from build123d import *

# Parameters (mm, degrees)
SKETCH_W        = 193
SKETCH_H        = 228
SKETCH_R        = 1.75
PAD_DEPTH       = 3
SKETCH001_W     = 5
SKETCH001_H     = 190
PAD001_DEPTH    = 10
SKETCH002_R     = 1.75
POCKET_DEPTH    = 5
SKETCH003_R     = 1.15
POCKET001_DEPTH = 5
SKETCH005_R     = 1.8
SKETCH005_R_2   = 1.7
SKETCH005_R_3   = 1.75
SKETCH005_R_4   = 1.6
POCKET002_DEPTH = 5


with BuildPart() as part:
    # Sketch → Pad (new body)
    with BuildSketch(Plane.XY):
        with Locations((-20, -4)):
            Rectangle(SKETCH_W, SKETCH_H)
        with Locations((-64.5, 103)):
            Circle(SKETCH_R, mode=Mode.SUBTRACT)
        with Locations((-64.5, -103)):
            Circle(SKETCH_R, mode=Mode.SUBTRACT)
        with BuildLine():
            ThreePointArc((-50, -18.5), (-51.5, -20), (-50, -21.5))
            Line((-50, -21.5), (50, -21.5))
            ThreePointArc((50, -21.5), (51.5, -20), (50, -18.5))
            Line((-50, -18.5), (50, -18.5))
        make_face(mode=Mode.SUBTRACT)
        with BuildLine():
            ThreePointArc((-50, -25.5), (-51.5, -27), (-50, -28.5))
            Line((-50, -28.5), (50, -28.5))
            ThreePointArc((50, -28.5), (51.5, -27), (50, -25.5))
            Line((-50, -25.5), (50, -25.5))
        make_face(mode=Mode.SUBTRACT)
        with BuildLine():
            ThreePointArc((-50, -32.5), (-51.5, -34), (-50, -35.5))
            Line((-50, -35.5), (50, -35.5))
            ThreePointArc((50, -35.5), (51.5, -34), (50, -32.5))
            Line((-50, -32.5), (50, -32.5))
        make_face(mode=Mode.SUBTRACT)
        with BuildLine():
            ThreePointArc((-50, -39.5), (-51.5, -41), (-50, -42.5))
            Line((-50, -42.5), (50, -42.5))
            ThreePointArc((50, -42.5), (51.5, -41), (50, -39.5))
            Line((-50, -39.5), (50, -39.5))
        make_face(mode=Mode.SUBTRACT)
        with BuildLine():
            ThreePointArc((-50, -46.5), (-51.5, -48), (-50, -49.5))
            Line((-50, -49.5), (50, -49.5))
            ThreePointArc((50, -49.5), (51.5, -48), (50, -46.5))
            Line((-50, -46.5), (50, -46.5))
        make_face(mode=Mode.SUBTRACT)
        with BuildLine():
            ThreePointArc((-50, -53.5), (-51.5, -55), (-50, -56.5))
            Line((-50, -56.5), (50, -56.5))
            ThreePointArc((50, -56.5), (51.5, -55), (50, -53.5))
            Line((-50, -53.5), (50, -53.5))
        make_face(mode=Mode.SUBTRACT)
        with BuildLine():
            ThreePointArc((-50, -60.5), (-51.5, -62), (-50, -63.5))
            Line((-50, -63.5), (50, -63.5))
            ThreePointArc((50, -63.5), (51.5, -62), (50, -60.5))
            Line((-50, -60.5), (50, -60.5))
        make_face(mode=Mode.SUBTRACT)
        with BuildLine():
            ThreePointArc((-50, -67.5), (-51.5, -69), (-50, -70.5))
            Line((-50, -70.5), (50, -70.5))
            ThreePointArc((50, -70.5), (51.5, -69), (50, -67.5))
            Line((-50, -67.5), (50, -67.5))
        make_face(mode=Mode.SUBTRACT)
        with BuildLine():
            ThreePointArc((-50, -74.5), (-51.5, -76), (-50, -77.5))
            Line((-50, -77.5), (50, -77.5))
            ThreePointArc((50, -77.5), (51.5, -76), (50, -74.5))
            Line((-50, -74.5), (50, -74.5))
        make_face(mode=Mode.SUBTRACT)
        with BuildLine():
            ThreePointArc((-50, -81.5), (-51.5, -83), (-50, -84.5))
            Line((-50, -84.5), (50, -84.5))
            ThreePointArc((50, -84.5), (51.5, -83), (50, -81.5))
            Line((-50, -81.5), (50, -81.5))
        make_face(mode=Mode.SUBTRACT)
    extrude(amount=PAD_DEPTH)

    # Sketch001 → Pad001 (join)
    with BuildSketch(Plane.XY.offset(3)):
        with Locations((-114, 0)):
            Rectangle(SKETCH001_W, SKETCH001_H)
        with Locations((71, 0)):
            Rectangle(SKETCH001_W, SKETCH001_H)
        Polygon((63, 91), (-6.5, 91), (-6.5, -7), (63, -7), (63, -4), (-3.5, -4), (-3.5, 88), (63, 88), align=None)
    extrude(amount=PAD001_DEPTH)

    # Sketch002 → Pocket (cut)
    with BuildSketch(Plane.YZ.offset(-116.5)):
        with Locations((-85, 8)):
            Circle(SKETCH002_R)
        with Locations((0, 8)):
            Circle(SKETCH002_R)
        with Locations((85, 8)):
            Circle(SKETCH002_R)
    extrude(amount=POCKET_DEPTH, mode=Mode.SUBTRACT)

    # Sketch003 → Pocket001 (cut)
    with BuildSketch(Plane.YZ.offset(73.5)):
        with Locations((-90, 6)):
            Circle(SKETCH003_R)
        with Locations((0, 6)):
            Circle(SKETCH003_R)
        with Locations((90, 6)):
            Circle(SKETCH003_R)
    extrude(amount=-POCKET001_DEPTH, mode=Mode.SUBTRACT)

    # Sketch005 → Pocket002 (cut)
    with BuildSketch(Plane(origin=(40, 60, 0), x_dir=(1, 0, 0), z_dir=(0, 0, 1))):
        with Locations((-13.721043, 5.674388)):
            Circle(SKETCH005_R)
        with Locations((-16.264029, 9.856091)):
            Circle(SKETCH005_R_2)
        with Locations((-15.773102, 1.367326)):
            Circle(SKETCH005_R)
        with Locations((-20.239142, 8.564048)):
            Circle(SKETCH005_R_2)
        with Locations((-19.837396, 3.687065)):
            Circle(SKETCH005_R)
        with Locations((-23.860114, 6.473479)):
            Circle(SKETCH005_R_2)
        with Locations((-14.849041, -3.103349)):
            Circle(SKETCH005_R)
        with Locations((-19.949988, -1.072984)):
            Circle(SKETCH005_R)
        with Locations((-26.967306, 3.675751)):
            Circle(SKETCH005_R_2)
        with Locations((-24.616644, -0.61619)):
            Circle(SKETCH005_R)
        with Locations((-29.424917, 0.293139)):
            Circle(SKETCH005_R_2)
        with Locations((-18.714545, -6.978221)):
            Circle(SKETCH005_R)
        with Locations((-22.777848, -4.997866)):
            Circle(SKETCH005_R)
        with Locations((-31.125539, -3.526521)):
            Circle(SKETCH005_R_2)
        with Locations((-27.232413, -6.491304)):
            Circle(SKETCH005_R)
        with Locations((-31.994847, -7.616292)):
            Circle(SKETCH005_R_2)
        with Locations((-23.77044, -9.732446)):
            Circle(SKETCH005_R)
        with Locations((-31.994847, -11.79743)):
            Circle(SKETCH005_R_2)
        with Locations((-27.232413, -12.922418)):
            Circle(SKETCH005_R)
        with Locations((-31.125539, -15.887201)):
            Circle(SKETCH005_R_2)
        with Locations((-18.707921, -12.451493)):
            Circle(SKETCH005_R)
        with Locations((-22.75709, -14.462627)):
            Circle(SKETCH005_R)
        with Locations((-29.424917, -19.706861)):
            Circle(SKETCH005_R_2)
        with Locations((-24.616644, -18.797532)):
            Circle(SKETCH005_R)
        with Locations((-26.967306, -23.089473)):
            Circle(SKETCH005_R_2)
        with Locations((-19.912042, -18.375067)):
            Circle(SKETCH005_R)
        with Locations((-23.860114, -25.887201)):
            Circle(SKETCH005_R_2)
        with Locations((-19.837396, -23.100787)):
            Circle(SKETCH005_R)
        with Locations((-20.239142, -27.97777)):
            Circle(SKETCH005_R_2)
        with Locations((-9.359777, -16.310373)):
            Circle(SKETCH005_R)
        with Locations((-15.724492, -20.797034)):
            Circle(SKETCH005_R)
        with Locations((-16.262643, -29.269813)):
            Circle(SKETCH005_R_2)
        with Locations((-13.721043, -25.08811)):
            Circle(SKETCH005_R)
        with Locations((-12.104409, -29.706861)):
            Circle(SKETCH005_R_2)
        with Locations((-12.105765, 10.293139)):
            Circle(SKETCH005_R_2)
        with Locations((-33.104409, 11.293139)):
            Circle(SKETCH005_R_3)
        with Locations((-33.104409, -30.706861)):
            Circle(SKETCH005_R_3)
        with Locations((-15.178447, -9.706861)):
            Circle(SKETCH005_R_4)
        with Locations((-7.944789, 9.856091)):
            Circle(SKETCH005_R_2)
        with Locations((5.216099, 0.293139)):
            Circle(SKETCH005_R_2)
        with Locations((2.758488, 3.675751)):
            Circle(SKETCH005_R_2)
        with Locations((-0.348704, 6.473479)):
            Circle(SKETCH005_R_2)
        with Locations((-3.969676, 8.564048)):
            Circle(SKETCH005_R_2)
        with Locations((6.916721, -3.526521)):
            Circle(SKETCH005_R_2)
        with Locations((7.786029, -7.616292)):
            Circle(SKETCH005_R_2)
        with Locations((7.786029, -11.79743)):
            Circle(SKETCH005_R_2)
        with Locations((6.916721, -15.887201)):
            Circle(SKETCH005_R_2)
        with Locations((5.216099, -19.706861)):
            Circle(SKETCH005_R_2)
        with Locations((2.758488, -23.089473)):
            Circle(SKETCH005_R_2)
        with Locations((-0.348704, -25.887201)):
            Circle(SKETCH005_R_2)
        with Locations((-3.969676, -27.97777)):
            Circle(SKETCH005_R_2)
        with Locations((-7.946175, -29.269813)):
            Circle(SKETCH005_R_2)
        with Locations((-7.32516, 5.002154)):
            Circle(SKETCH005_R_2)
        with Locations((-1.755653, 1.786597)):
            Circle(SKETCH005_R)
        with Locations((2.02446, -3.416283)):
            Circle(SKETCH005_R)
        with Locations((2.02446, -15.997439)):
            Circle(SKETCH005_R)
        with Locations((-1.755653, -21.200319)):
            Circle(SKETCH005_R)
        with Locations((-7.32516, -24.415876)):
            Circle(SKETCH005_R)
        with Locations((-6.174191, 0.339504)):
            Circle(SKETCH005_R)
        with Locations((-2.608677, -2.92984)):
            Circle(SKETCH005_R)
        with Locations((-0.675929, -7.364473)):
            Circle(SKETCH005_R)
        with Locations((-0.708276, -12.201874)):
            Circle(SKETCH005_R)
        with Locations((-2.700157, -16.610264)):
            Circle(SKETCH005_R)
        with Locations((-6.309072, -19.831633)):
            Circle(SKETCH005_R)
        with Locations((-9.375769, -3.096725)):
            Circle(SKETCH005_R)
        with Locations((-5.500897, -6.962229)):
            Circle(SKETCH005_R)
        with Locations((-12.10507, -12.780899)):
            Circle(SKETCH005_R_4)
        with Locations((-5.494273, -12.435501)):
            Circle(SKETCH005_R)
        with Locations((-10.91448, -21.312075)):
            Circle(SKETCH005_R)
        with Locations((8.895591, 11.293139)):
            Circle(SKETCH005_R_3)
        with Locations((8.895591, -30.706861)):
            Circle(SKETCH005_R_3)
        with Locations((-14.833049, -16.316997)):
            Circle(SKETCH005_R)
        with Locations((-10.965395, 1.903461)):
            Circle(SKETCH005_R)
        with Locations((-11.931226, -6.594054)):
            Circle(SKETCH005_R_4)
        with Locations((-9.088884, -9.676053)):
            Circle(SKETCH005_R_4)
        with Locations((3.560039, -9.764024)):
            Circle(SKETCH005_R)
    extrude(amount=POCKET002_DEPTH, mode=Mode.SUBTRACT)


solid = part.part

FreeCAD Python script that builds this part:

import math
import FreeCAD as App
import Part
import Sketcher

V = App.Vector


def add_polygon(sketch, points):
    """Adds a closed chain of lines whose ends are joined by coincident constraints."""
    first, n = sketch.GeometryCount, len(points)
    for a, b in zip(points, points[1:] + points[:1]):
        sketch.addGeometry(Part.LineSegment(App.Vector(*a, 0), App.Vector(*b, 0)), False)
    for i in range(n):
        sketch.addConstraint(Sketcher.Constraint("Coincident", first + i, 2, first + (i + 1) % n, 1))

doc = App.newDocument("Part")
body = doc.addObject("PartDesign::Body", "Body")

# Sketch on XY plane
sketch1 = doc.addObject("Sketcher::SketchObject", "Sketch")
body.addObject(sketch1)
sketch1.AttachmentSupport = (doc.XY_Plane, [""])
sketch1.MapMode = "FlatFace"
add_polygon(sketch1, [(-116.5, 110), (-116.5, -118), (76.5, -118), (76.5, 110)])  # lines 0-3
sketch1.addGeometry(Part.Circle(V(-64.5, -103, 0), V(0, 0, 1), 1.8), False)  # 4
sketch1.addGeometry(Part.ArcOfCircle(Part.Circle(V(-50, -83, 0), V(0, 0, 1), 1.5), math.radians(90), math.radians(270)), False)  # 5
sketch1.addGeometry(Part.LineSegment(V(-50, -81.5, 0), V(50, -81.5, 0)), False)  # 6
sketch1.addGeometry(Part.ArcOfCircle(Part.Circle(V(50, -83, 0), V(0, 0, 1), 1.5), math.radians(-90), math.radians(90)), False)  # 7
sketch1.addGeometry(Part.LineSegment(V(50, -84.5, 0), V(-50, -84.5, 0)), False)  # 8
sketch1.addGeometry(Part.ArcOfCircle(Part.Circle(V(-50, -76, 0), V(0, 0, 1), 1.5), math.radians(90), math.radians(270)), False)  # 9
sketch1.addGeometry(Part.LineSegment(V(-50, -74.5, 0), V(50, -74.5, 0)), False)  # 10
sketch1.addGeometry(Part.ArcOfCircle(Part.Circle(V(50, -76, 0), V(0, 0, 1), 1.5), math.radians(-90), math.radians(90)), False)  # 11
sketch1.addGeometry(Part.LineSegment(V(50, -77.5, 0), V(-50, -77.5, 0)), False)  # 12
sketch1.addGeometry(Part.ArcOfCircle(Part.Circle(V(-50, -69, 0), V(0, 0, 1), 1.5), math.radians(90), math.radians(270)), False)  # 13
sketch1.addGeometry(Part.LineSegment(V(-50, -67.5, 0), V(50, -67.5, 0)), False)  # 14
sketch1.addGeometry(Part.ArcOfCircle(Part.Circle(V(50, -69, 0), V(0, 0, 1), 1.5), math.radians(-90), math.radians(90)), False)  # 15
sketch1.addGeometry(Part.LineSegment(V(50, -70.5, 0), V(-50, -70.5, 0)), False)  # 16
sketch1.addGeometry(Part.ArcOfCircle(Part.Circle(V(-50, -62, 0), V(0, 0, 1), 1.5), math.radians(90), math.radians(270)), False)  # 17
sketch1.addGeometry(Part.LineSegment(V(-50, -60.5, 0), V(50, -60.5, 0)), False)  # 18
sketch1.addGeometry(Part.ArcOfCircle(Part.Circle(V(50, -62, 0), V(0, 0, 1), 1.5), math.radians(-90), math.radians(90)), False)  # 19
sketch1.addGeometry(Part.LineSegment(V(50, -63.5, 0), V(-50, -63.5, 0)), False)  # 20
sketch1.addGeometry(Part.ArcOfCircle(Part.Circle(V(-50, -55, 0), V(0, 0, 1), 1.5), math.radians(90), math.radians(270)), False)  # 21
sketch1.addGeometry(Part.LineSegment(V(-50, -53.5, 0), V(50, -53.5, 0)), False)  # 22
sketch1.addGeometry(Part.ArcOfCircle(Part.Circle(V(50, -55, 0), V(0, 0, 1), 1.5), math.radians(-90), math.radians(90)), False)  # 23
sketch1.addGeometry(Part.LineSegment(V(50, -56.5, 0), V(-50, -56.5, 0)), False)  # 24
sketch1.addGeometry(Part.ArcOfCircle(Part.Circle(V(-50, -48, 0), V(0, 0, 1), 1.5), math.radians(90), math.radians(270)), False)  # 25
sketch1.addGeometry(Part.LineSegment(V(-50, -46.5, 0), V(50, -46.5, 0)), False)  # 26
sketch1.addGeometry(Part.ArcOfCircle(Part.Circle(V(50, -48, 0), V(0, 0, 1), 1.5), math.radians(-90), math.radians(90)), False)  # 27
sketch1.addGeometry(Part.LineSegment(V(50, -49.5, 0), V(-50, -49.5, 0)), False)  # 28
sketch1.addGeometry(Part.ArcOfCircle(Part.Circle(V(-50, -41, 0), V(0, 0, 1), 1.5), math.radians(90), math.radians(270)), False)  # 29
sketch1.addGeometry(Part.LineSegment(V(-50, -39.5, 0), V(50, -39.5, 0)), False)  # 30
sketch1.addGeometry(Part.ArcOfCircle(Part.Circle(V(50, -41, 0), V(0, 0, 1), 1.5), math.radians(-90), math.radians(90)), False)  # 31
sketch1.addGeometry(Part.LineSegment(V(50, -42.5, 0), V(-50, -42.5, 0)), False)  # 32
sketch1.addGeometry(Part.ArcOfCircle(Part.Circle(V(-50, -34, 0), V(0, 0, 1), 1.5), math.radians(90), math.radians(270)), False)  # 33
sketch1.addGeometry(Part.LineSegment(V(-50, -32.5, 0), V(50, -32.5, 0)), False)  # 34
sketch1.addGeometry(Part.ArcOfCircle(Part.Circle(V(50, -34, 0), V(0, 0, 1), 1.5), math.radians(-90), math.radians(90)), False)  # 35
sketch1.addGeometry(Part.LineSegment(V(50, -35.5, 0), V(-50, -35.5, 0)), False)  # 36
sketch1.addGeometry(Part.ArcOfCircle(Part.Circle(V(-50, -27, 0), V(0, 0, 1), 1.5), math.radians(90), math.radians(270)), False)  # 37
sketch1.addGeometry(Part.LineSegment(V(-50, -25.5, 0), V(50, -25.5, 0)), False)  # 38
sketch1.addGeometry(Part.ArcOfCircle(Part.Circle(V(50, -27, 0), V(0, 0, 1), 1.5), math.radians(-90), math.radians(90)), False)  # 39
sketch1.addGeometry(Part.LineSegment(V(50, -28.5, 0), V(-50, -28.5, 0)), False)  # 40
sketch1.addGeometry(Part.ArcOfCircle(Part.Circle(V(-50, -20, 0), V(0, 0, 1), 1.5), math.radians(90), math.radians(270)), False)  # 41
sketch1.addGeometry(Part.LineSegment(V(-50, -18.5, 0), V(50, -18.5, 0)), False)  # 42
sketch1.addGeometry(Part.ArcOfCircle(Part.Circle(V(50, -20, 0), V(0, 0, 1), 1.5), math.radians(-90), math.radians(90)), False)  # 43
sketch1.addGeometry(Part.LineSegment(V(50, -21.5, 0), V(-50, -21.5, 0)), False)  # 44
sketch1.addGeometry(Part.Circle(V(-64.5, 103, 0), V(0, 0, 1), 1.8), False)  # 45
sketch1.addConstraint(Sketcher.Constraint("Tangent", 5, 1, 6, 1))
sketch1.addConstraint(Sketcher.Constraint("Tangent", 6, 2, 7, 2))
sketch1.addConstraint(Sketcher.Constraint("Tangent", 7, 1, 8, 1))
sketch1.addConstraint(Sketcher.Constraint("Tangent", 8, 2, 5, 2))
sketch1.addConstraint(Sketcher.Constraint("Tangent", 9, 1, 10, 1))
sketch1.addConstraint(Sketcher.Constraint("Tangent", 10, 2, 11, 2))
sketch1.addConstraint(Sketcher.Constraint("Tangent", 11, 1, 12, 1))
sketch1.addConstraint(Sketcher.Constraint("Tangent", 12, 2, 9, 2))
sketch1.addConstraint(Sketcher.Constraint("Tangent", 13, 1, 14, 1))
sketch1.addConstraint(Sketcher.Constraint("Tangent", 14, 2, 15, 2))
sketch1.addConstraint(Sketcher.Constraint("Tangent", 15, 1, 16, 1))
sketch1.addConstraint(Sketcher.Constraint("Tangent", 16, 2, 13, 2))
sketch1.addConstraint(Sketcher.Constraint("Tangent", 17, 1, 18, 1))
sketch1.addConstraint(Sketcher.Constraint("Tangent", 18, 2, 19, 2))
sketch1.addConstraint(Sketcher.Constraint("Tangent", 19, 1, 20, 1))
sketch1.addConstraint(Sketcher.Constraint("Tangent", 20, 2, 17, 2))
sketch1.addConstraint(Sketcher.Constraint("Tangent", 21, 1, 22, 1))
sketch1.addConstraint(Sketcher.Constraint("Tangent", 22, 2, 23, 2))
sketch1.addConstraint(Sketcher.Constraint("Tangent", 23, 1, 24, 1))
sketch1.addConstraint(Sketcher.Constraint("Tangent", 24, 2, 21, 2))
sketch1.addConstraint(Sketcher.Constraint("Tangent", 25, 1, 26, 1))
sketch1.addConstraint(Sketcher.Constraint("Tangent", 26, 2, 27, 2))
sketch1.addConstraint(Sketcher.Constraint("Tangent", 27, 1, 28, 1))
sketch1.addConstraint(Sketcher.Constraint("Tangent", 28, 2, 25, 2))
sketch1.addConstraint(Sketcher.Constraint("Tangent", 29, 1, 30, 1))
sketch1.addConstraint(Sketcher.Constraint("Tangent", 30, 2, 31, 2))
sketch1.addConstraint(Sketcher.Constraint("Tangent", 31, 1, 32, 1))
sketch1.addConstraint(Sketcher.Constraint("Tangent", 32, 2, 29, 2))
sketch1.addConstraint(Sketcher.Constraint("Tangent", 33, 1, 34, 1))
sketch1.addConstraint(Sketcher.Constraint("Tangent", 34, 2, 35, 2))
sketch1.addConstraint(Sketcher.Constraint("Tangent", 35, 1, 36, 1))
sketch1.addConstraint(Sketcher.Constraint("Tangent", 36, 2, 33, 2))
sketch1.addConstraint(Sketcher.Constraint("Tangent", 37, 1, 38, 1))
sketch1.addConstraint(Sketcher.Constraint("Tangent", 38, 2, 39, 2))
sketch1.addConstraint(Sketcher.Constraint("Tangent", 39, 1, 40, 1))
sketch1.addConstraint(Sketcher.Constraint("Tangent", 40, 2, 37, 2))
sketch1.addConstraint(Sketcher.Constraint("Tangent", 41, 1, 42, 1))
sketch1.addConstraint(Sketcher.Constraint("Tangent", 42, 2, 43, 2))
sketch1.addConstraint(Sketcher.Constraint("Tangent", 43, 1, 44, 1))
sketch1.addConstraint(Sketcher.Constraint("Tangent", 44, 2, 41, 2))
sketch1.addConstraint(Sketcher.Constraint("Vertical", 0))
sketch1.addConstraint(Sketcher.Constraint("Horizontal", 1))
sketch1.addConstraint(Sketcher.Constraint("Vertical", 2))
sketch1.addConstraint(Sketcher.Constraint("Horizontal", 3))
sketch1.addConstraint(Sketcher.Constraint("Horizontal", 6))
sketch1.addConstraint(Sketcher.Constraint("Horizontal", 8))
sketch1.addConstraint(Sketcher.Constraint("Horizontal", 10))
sketch1.addConstraint(Sketcher.Constraint("Horizontal", 12))
sketch1.addConstraint(Sketcher.Constraint("Horizontal", 14))
sketch1.addConstraint(Sketcher.Constraint("Horizontal", 16))
sketch1.addConstraint(Sketcher.Constraint("Horizontal", 18))
sketch1.addConstraint(Sketcher.Constraint("Horizontal", 20))
sketch1.addConstraint(Sketcher.Constraint("Horizontal", 22))
sketch1.addConstraint(Sketcher.Constraint("Horizontal", 24))
sketch1.addConstraint(Sketcher.Constraint("Horizontal", 26))
sketch1.addConstraint(Sketcher.Constraint("Horizontal", 28))
sketch1.addConstraint(Sketcher.Constraint("Horizontal", 30))
sketch1.addConstraint(Sketcher.Constraint("Horizontal", 32))
sketch1.addConstraint(Sketcher.Constraint("Horizontal", 34))
sketch1.addConstraint(Sketcher.Constraint("Horizontal", 36))
sketch1.addConstraint(Sketcher.Constraint("Horizontal", 38))
sketch1.addConstraint(Sketcher.Constraint("Horizontal", 40))
sketch1.addConstraint(Sketcher.Constraint("Horizontal", 42))
sketch1.addConstraint(Sketcher.Constraint("Horizontal", 44))
sketch1.addConstraint(Sketcher.Constraint("Equal", 7, 9))
sketch1.addConstraint(Sketcher.Constraint("Equal", 11, 13))
sketch1.addConstraint(Sketcher.Constraint("Equal", 15, 17))
sketch1.addConstraint(Sketcher.Constraint("Equal", 19, 21))
sketch1.addConstraint(Sketcher.Constraint("Equal", 23, 25))
sketch1.addConstraint(Sketcher.Constraint("Equal", 27, 29))
sketch1.addConstraint(Sketcher.Constraint("Equal", 31, 33))
sketch1.addConstraint(Sketcher.Constraint("Equal", 35, 37))
sketch1.addConstraint(Sketcher.Constraint("Equal", 39, 41))
sketch1.addConstraint(Sketcher.Constraint("Equal", 4, 45))
sketch1.addConstraint(Sketcher.Constraint("Symmetric", 4, 3, 45, 3, -1))
sketch1.addConstraint(Sketcher.Constraint("Vertical", 5, 3, 9, 3))
sketch1.addConstraint(Sketcher.Constraint("Vertical", 7, 3, 11, 3))
sketch1.addConstraint(Sketcher.Constraint("Vertical", 9, 3, 13, 3))
sketch1.addConstraint(Sketcher.Constraint("Vertical", 11, 3, 15, 3))
sketch1.addConstraint(Sketcher.Constraint("Vertical", 13, 3, 17, 3))
sketch1.addConstraint(Sketcher.Constraint("Vertical", 15, 3, 19, 3))
sketch1.addConstraint(Sketcher.Constraint("Vertical", 17, 3, 21, 3))
sketch1.addConstraint(Sketcher.Constraint("Vertical", 19, 3, 23, 3))
sketch1.addConstraint(Sketcher.Constraint("Vertical", 21, 3, 25, 3))
sketch1.addConstraint(Sketcher.Constraint("Vertical", 23, 3, 27, 3))
sketch1.addConstraint(Sketcher.Constraint("Vertical", 25, 3, 29, 3))
sketch1.addConstraint(Sketcher.Constraint("Vertical", 27, 3, 31, 3))
sketch1.addConstraint(Sketcher.Constraint("Vertical", 29, 3, 33, 3))
sketch1.addConstraint(Sketcher.Constraint("Vertical", 31, 3, 35, 3))
sketch1.addConstraint(Sketcher.Constraint("Vertical", 33, 3, 37, 3))
sketch1.addConstraint(Sketcher.Constraint("Vertical", 35, 3, 39, 3))
sketch1.addConstraint(Sketcher.Constraint("Vertical", 37, 3, 41, 3))
sketch1.addConstraint(Sketcher.Constraint("Vertical", 39, 3, 43, 3))
sketch1.addConstraint(Sketcher.Constraint("Diameter", 4, 3.5))
sketch1.addConstraint(Sketcher.Constraint("Radius", 5, 1.5))
sketch1.addConstraint(Sketcher.Constraint("DistanceX", 1, 1, 1, 2, 193.0))
sketch1.addConstraint(Sketcher.Constraint("DistanceX", 6, 1, 6, 2, 100.0))
sketch1.addConstraint(Sketcher.Constraint("DistanceY", 0, 2, 0, 1, 228.0))
sketch1.addConstraint(Sketcher.Constraint("DistanceY", 4, 3, -1, 1, 103.0))
sketch1.addConstraint(Sketcher.Constraint("DistanceX", 5, 3, -1, 1, 50.0))
sketch1.addConstraint(Sketcher.Constraint("DistanceY", 5, 3, -1, 1, 83.0))
sketch1.addConstraint(Sketcher.Constraint("DistanceY", 9, 3, -1, 1, 76.0))
sketch1.addConstraint(Sketcher.Constraint("DistanceY", 13, 3, -1, 1, 69.0))
sketch1.addConstraint(Sketcher.Constraint("DistanceY", 17, 3, -1, 1, 62.0))
sketch1.addConstraint(Sketcher.Constraint("DistanceY", 21, 3, -1, 1, 55.0))
sketch1.addConstraint(Sketcher.Constraint("DistanceY", 25, 3, -1, 1, 48.0))
sketch1.addConstraint(Sketcher.Constraint("DistanceY", 29, 3, -1, 1, 41.0))
sketch1.addConstraint(Sketcher.Constraint("DistanceY", 33, 3, -1, 1, 34.0))
sketch1.addConstraint(Sketcher.Constraint("DistanceY", 37, 3, -1, 1, 27.0))
sketch1.addConstraint(Sketcher.Constraint("DistanceY", 41, 3, -1, 1, 20.0))
sketch1.addConstraint(Sketcher.Constraint("DistanceY", 0, 2, -1, 1, 118.0))
sketch1.addConstraint(Sketcher.Constraint("DistanceX", 4, 3, -1, 1, 64.5))
sketch1.addConstraint(Sketcher.Constraint("DistanceX", 0, 2, -1, 1, 116.5))
pad1 = doc.addObject("PartDesign::Pad", "Pad")
body.addObject(pad1)
pad1.Profile = sketch1
pad1.Length = 3

# Sketch on XY plane
sketch2 = doc.addObject("Sketcher::SketchObject", "Sketch001")
body.addObject(sketch2)
sketch2.AttachmentSupport = (doc.XY_Plane, [""])
sketch2.MapMode = "FlatFace"
sketch2.AttachmentOffset = App.Placement(V(0, 0, 3), App.Rotation())
add_polygon(sketch2, [(-116.5, 95), (-116.5, -95), (-111.5, -95), (-111.5, 95)])  # lines 0-3
add_polygon(sketch2, [(68.5, 95), (68.5, -95), (73.5, -95), (73.5, 95)])  # lines 4-7
add_polygon(sketch2, [(63, 91), (-6.5, 91), (-6.5, -7), (63, -7), (63, -4), (-3.5, -4), (-3.5, 88), (63, 88)])  # lines 8-15
sketch2.addConstraint(Sketcher.Constraint("Vertical", 0))
sketch2.addConstraint(Sketcher.Constraint("Horizontal", 1))
sketch2.addConstraint(Sketcher.Constraint("Vertical", 2))
sketch2.addConstraint(Sketcher.Constraint("Horizontal", 3))
sketch2.addConstraint(Sketcher.Constraint("Vertical", 4))
sketch2.addConstraint(Sketcher.Constraint("Horizontal", 5))
sketch2.addConstraint(Sketcher.Constraint("Vertical", 6))
sketch2.addConstraint(Sketcher.Constraint("Horizontal", 7))
sketch2.addConstraint(Sketcher.Constraint("Horizontal", 8))
sketch2.addConstraint(Sketcher.Constraint("Vertical", 9))
sketch2.addConstraint(Sketcher.Constraint("Horizontal", 10))
sketch2.addConstraint(Sketcher.Constraint("Vertical", 11))
sketch2.addConstraint(Sketcher.Constraint("Horizontal", 12))
sketch2.addConstraint(Sketcher.Constraint("Vertical", 13))
sketch2.addConstraint(Sketcher.Constraint("Horizontal", 14))
sketch2.addConstraint(Sketcher.Constraint("Vertical", 15))
sketch2.addConstraint(Sketcher.Constraint("Horizontal", 1, 2, 4, 2))
sketch2.addConstraint(Sketcher.Constraint("Horizontal", 3, 2, 6, 2))
sketch2.addConstraint(Sketcher.Constraint("Vertical", 11, 2, 14, 2))
sketch2.addConstraint(Sketcher.Constraint("Equal", 3, 5))
sketch2.addConstraint(Sketcher.Constraint("Equal", 11, 15))
sketch2.addConstraint(Sketcher.Constraint("DistanceX", 1, 1, 1, 2, 5.0))
sketch2.addConstraint(Sketcher.Constraint("DistanceY", 0, 2, 0, 1, 190.0))
sketch2.addConstraint(Sketcher.Constraint("DistanceY", 9, 2, 9, 1, 98.0))
sketch2.addConstraint(Sketcher.Constraint("DistanceY", 11, 1, 11, 2, 3.0))
sketch2.addConstraint(Sketcher.Constraint("DistanceX", 8, 2, 8, 1, 69.5))
sketch2.addConstraint(Sketcher.Constraint("DistanceX", 12, 2, 12, 1, 66.5))
sketch2.addConstraint(Sketcher.Constraint("DistanceY", 0, 2, -1, 1, 95.0))
sketch2.addConstraint(Sketcher.Constraint("DistanceY", -1, 1, 8, 2, 91.0))
sketch2.addConstraint(Sketcher.Constraint("DistanceX", -1, 1, 10, 2, 63.0))
sketch2.addConstraint(Sketcher.Constraint("DistanceX", 1, 2, 4, 2, 180.0))
sketch2.addConstraint(Sketcher.Constraint("DistanceX", 8, 2, 7, 2, 75.0))
pad2 = doc.addObject("PartDesign::Pad", "Pad001")
body.addObject(pad2)
pad2.Profile = sketch2
pad2.Length = 10

# Sketch on YZ plane
sketch3 = doc.addObject("Sketcher::SketchObject", "Sketch002")
body.addObject(sketch3)
sketch3.AttachmentSupport = (doc.YZ_Plane, [""])
sketch3.MapMode = "FlatFace"
sketch3.AttachmentOffset = App.Placement(V(0, 0, -116.5), App.Rotation())
sketch3.addGeometry(Part.Circle(V(-85, 8, 0), V(0, 0, 1), 1.8), False)
sketch3.addGeometry(Part.Circle(V(0, 8, 0), V(0, 0, 1), 1.8), False)
sketch3.addGeometry(Part.Circle(V(85, 8, 0), V(0, 0, 1), 1.8), False)
sketch3.addConstraint(Sketcher.Constraint("Equal", 0, 1))
sketch3.addConstraint(Sketcher.Constraint("Equal", 1, 2))
sketch3.addConstraint(Sketcher.Constraint("Symmetric", 0, 3, 2, 3, -2))
sketch3.addConstraint(Sketcher.Constraint("PointOnObject", 1, 3, -2))
sketch3.addConstraint(Sketcher.Constraint("Horizontal", 0, 3, 1, 3))
sketch3.addConstraint(Sketcher.Constraint("Diameter", 0, 3.5))
sketch3.addConstraint(Sketcher.Constraint("DistanceX", 0, 3, -1, 1, 85.0))
sketch3.addConstraint(Sketcher.Constraint("DistanceY", -1, 1, 0, 3, 8.0))
pocket1 = doc.addObject("PartDesign::Pocket", "Pocket")
body.addObject(pocket1)
pocket1.Profile = sketch3
pocket1.Length = 5
pocket1.Reversed = True

# Sketch on YZ plane
sketch4 = doc.addObject("Sketcher::SketchObject", "Sketch003")
body.addObject(sketch4)
sketch4.AttachmentSupport = (doc.YZ_Plane, [""])
sketch4.MapMode = "FlatFace"
sketch4.AttachmentOffset = App.Placement(V(0, 0, 73.5), App.Rotation())
sketch4.addGeometry(Part.Circle(V(-90, 6, 0), V(0, 0, 1), 1.1), False)
sketch4.addGeometry(Part.Circle(V(0, 6, 0), V(0, 0, 1), 1.1), False)
sketch4.addGeometry(Part.Circle(V(90, 6, 0), V(0, 0, 1), 1.1), False)
sketch4.addConstraint(Sketcher.Constraint("Equal", 0, 1))
sketch4.addConstraint(Sketcher.Constraint("Equal", 1, 2))
sketch4.addConstraint(Sketcher.Constraint("Symmetric", 0, 3, 2, 3, -2))
sketch4.addConstraint(Sketcher.Constraint("PointOnObject", 1, 3, -2))
sketch4.addConstraint(Sketcher.Constraint("Horizontal", 0, 3, 1, 3))
sketch4.addConstraint(Sketcher.Constraint("Diameter", 0, 2.3))
sketch4.addConstraint(Sketcher.Constraint("DistanceX", 0, 3, -1, 1, 90.0))
sketch4.addConstraint(Sketcher.Constraint("DistanceY", -1, 1, 0, 3, 6.0))
pocket2 = doc.addObject("PartDesign::Pocket", "Pocket001")
body.addObject(pocket2)
pocket2.Profile = sketch4
pocket2.Length = 5

# Sketch on XY plane
sketch5 = doc.addObject("Sketcher::SketchObject", "Sketch004")
body.addObject(sketch5)
sketch5.AttachmentSupport = (doc.XY_Plane, [""])
sketch5.MapMode = "FlatFace"
sketch5.addGeometry(Part.Circle(V(26.3, 65.7, 0), V(0, 0, 1), 1.8), False)
sketch5.addGeometry(Part.Circle(V(23.7, 69.9, 0), V(0, 0, 1), 1.7), False)
sketch5.addGeometry(Part.Circle(V(24.2, 61.4, 0), V(0, 0, 1), 1.8), False)
sketch5.addGeometry(Part.Circle(V(19.8, 68.6, 0), V(0, 0, 1), 1.7), False)
sketch5.addGeometry(Part.Circle(V(20.2, 63.7, 0), V(0, 0, 1), 1.8), False)
sketch5.addGeometry(Part.Circle(V(16.1, 66.5, 0), V(0, 0, 1), 1.7), False)
sketch5.addGeometry(Part.Circle(V(25.2, 56.9, 0), V(0, 0, 1), 1.8), False)
sketch5.addGeometry(Part.Circle(V(20.1, 58.9, 0), V(0, 0, 1), 1.8), False)
sketch5.addGeometry(Part.Circle(V(13, 63.7, 0), V(0, 0, 1), 1.7), False)
sketch5.addGeometry(Part.Circle(V(15.4, 59.4, 0), V(0, 0, 1), 1.8), False)
sketch5.addGeometry(Part.Circle(V(10.6, 60.3, 0), V(0, 0, 1), 1.7), False)
sketch5.addGeometry(Part.Circle(V(21.3, 53, 0), V(0, 0, 1), 1.8), False)
sketch5.addGeometry(Part.Circle(V(17.2, 55, 0), V(0, 0, 1), 1.8), False)
sketch5.addGeometry(Part.Circle(V(8.9, 56.5, 0), V(0, 0, 1), 1.7), False)
sketch5.addGeometry(Part.Circle(V(12.8, 53.5, 0), V(0, 0, 1), 1.8), False)
sketch5.addGeometry(Part.Circle(V(8, 52.4, 0), V(0, 0, 1), 1.7), False)
sketch5.addGeometry(Part.Circle(V(16.2, 50.3, 0), V(0, 0, 1), 1.8), False)
sketch5.addGeometry(Part.Circle(V(8, 48.2, 0), V(0, 0, 1), 1.7), False)
sketch5.addGeometry(Part.Circle(V(12.8, 47.1, 0), V(0, 0, 1), 1.8), False)
sketch5.addGeometry(Part.Circle(V(8.9, 44.1, 0), V(0, 0, 1), 1.7), False)
sketch5.addGeometry(Part.Circle(V(21.3, 47.5, 0), V(0, 0, 1), 1.8), False)
sketch5.addGeometry(Part.Circle(V(17.2, 45.5, 0), V(0, 0, 1), 1.8), False)
sketch5.addGeometry(Part.Circle(V(10.6, 40.3, 0), V(0, 0, 1), 1.7), False)
sketch5.addGeometry(Part.Circle(V(15.4, 41.2, 0), V(0, 0, 1), 1.8), False)
sketch5.addGeometry(Part.Circle(V(13, 36.9, 0), V(0, 0, 1), 1.7), False)
sketch5.addGeometry(Part.Circle(V(20.1, 41.6, 0), V(0, 0, 1), 1.8), False)
sketch5.addGeometry(Part.Circle(V(16.1, 34.1, 0), V(0, 0, 1), 1.7), False)
sketch5.addGeometry(Part.Circle(V(20.2, 36.9, 0), V(0, 0, 1), 1.8), False)
sketch5.addGeometry(Part.Circle(V(19.8, 32, 0), V(0, 0, 1), 1.7), False)
sketch5.addGeometry(Part.Circle(V(30.6, 43.7, 0), V(0, 0, 1), 1.8), False)
sketch5.addGeometry(Part.Circle(V(24.3, 39.2, 0), V(0, 0, 1), 1.8), False)
sketch5.addGeometry(Part.Circle(V(23.7, 30.7, 0), V(0, 0, 1), 1.7), False)
sketch5.addGeometry(Part.Circle(V(26.3, 34.9, 0), V(0, 0, 1), 1.8), False)
sketch5.addGeometry(Part.Circle(V(27.9, 30.3, 0), V(0, 0, 1), 1.7), False)
sketch5.addGeometry(Part.Circle(V(27.9, 70.3, 0), V(0, 0, 1), 1.7), False)
sketch5.addGeometry(Part.Circle(V(6.9, 71.3, 0), V(0, 0, 1), 1.8), False)
sketch5.addGeometry(Part.Circle(V(6.9, 29.3, 0), V(0, 0, 1), 1.8), False)
sketch5.addGeometry(Part.Circle(V(24.8, 50.3, 0), V(0, 0, 1), 1.6), False)
sketch5.addGeometry(Part.Circle(V(32.1, 69.9, 0), V(0, 0, 1), 1.7), False)
sketch5.addGeometry(Part.Circle(V(45.2, 60.3, 0), V(0, 0, 1), 1.7), False)
sketch5.addGeometry(Part.Circle(V(42.8, 63.7, 0), V(0, 0, 1), 1.7), False)
sketch5.addGeometry(Part.Circle(V(39.7, 66.5, 0), V(0, 0, 1), 1.7), False)
sketch5.addGeometry(Part.Circle(V(36, 68.6, 0), V(0, 0, 1), 1.7), False)
sketch5.addGeometry(Part.Circle(V(46.9, 56.5, 0), V(0, 0, 1), 1.7), False)
sketch5.addGeometry(Part.Circle(V(47.8, 52.4, 0), V(0, 0, 1), 1.7), False)
sketch5.addGeometry(Part.Circle(V(47.8, 48.2, 0), V(0, 0, 1), 1.7), False)
sketch5.addGeometry(Part.Circle(V(46.9, 44.1, 0), V(0, 0, 1), 1.7), False)
sketch5.addGeometry(Part.Circle(V(45.2, 40.3, 0), V(0, 0, 1), 1.7), False)
sketch5.addGeometry(Part.Circle(V(42.8, 36.9, 0), V(0, 0, 1), 1.7), False)
sketch5.addGeometry(Part.Circle(V(39.7, 34.1, 0), V(0, 0, 1), 1.7), False)
sketch5.addGeometry(Part.Circle(V(36, 32, 0), V(0, 0, 1), 1.7), False)
sketch5.addGeometry(Part.Circle(V(32.1, 30.7, 0), V(0, 0, 1), 1.7), False)
sketch5.addGeometry(Part.Circle(V(32.7, 65, 0), V(0, 0, 1), 1.7), False)
sketch5.addGeometry(Part.Circle(V(38.2, 61.8, 0), V(0, 0, 1), 1.8), False)
sketch5.addGeometry(Part.Circle(V(42, 56.6, 0), V(0, 0, 1), 1.8), False)
sketch5.addGeometry(Part.Circle(V(42, 44, 0), V(0, 0, 1), 1.8), False)
sketch5.addGeometry(Part.Circle(V(38.2, 38.8, 0), V(0, 0, 1), 1.8), False)
sketch5.addGeometry(Part.Circle(V(32.7, 35.6, 0), V(0, 0, 1), 1.8), False)
sketch5.addGeometry(Part.Circle(V(33.8, 60.3, 0), V(0, 0, 1), 1.8), False)
sketch5.addGeometry(Part.Circle(V(37.4, 57.1, 0), V(0, 0, 1), 1.8), False)
sketch5.addGeometry(Part.Circle(V(39.3, 52.6, 0), V(0, 0, 1), 1.8), False)
sketch5.addGeometry(Part.Circle(V(39.3, 47.8, 0), V(0, 0, 1), 1.8), False)
sketch5.addGeometry(Part.Circle(V(37.3, 43.4, 0), V(0, 0, 1), 1.8), False)
sketch5.addGeometry(Part.Circle(V(33.7, 40.2, 0), V(0, 0, 1), 1.8), False)
sketch5.addGeometry(Part.Circle(V(30.6, 56.9, 0), V(0, 0, 1), 1.8), False)
sketch5.addGeometry(Part.Circle(V(34.5, 53, 0), V(0, 0, 1), 1.8), False)
sketch5.addGeometry(Part.Circle(V(27.9, 47.2, 0), V(0, 0, 1), 1.6), False)
sketch5.addGeometry(Part.Circle(V(34.5, 47.6, 0), V(0, 0, 1), 1.8), False)
sketch5.addGeometry(Part.Circle(V(29.1, 38.7, 0), V(0, 0, 1), 1.8), False)
sketch5.addGeometry(Part.Circle(V(48.9, 71.3, 0), V(0, 0, 1), 1.8), False)
sketch5.addGeometry(Part.Circle(V(48.9, 29.3, 0), V(0, 0, 1), 1.8), False)
sketch5.addGeometry(Part.Circle(V(25.2, 43.7, 0), V(0, 0, 1), 1.8), False)
sketch5.addGeometry(Part.Circle(V(29, 61.9, 0), V(0, 0, 1), 1.8), False)
sketch5.addGeometry(Part.Circle(V(28.1, 53.4, 0), V(0, 0, 1), 1.6), False)
sketch5.addGeometry(Part.Circle(V(30.9, 50.3, 0), V(0, 0, 1), 1.6), False)
sketch5.addGeometry(Part.Circle(V(43.6, 50.2, 0), V(0, 0, 1), 1.8), False)
sketch5.addConstraint(Sketcher.Constraint("Equal", 0, 2))
sketch5.addConstraint(Sketcher.Constraint("Equal", 1, 3))
sketch5.addConstraint(Sketcher.Constraint("Equal", 2, 4))
sketch5.addConstraint(Sketcher.Constraint("Equal", 3, 5))
sketch5.addConstraint(Sketcher.Constraint("Equal", 4, 6))
sketch5.addConstraint(Sketcher.Constraint("Equal", 6, 7))
sketch5.addConstraint(Sketcher.Constraint("Equal", 5, 8))
sketch5.addConstraint(Sketcher.Constraint("Equal", 7, 9))
sketch5.addConstraint(Sketcher.Constraint("Equal", 8, 10))
sketch5.addConstraint(Sketcher.Constraint("Equal", 9, 11))
sketch5.addConstraint(Sketcher.Constraint("Equal", 11, 12))
sketch5.addConstraint(Sketcher.Constraint("Equal", 10, 13))
sketch5.addConstraint(Sketcher.Constraint("Equal", 12, 14))
sketch5.addConstraint(Sketcher.Constraint("Equal", 13, 15))
sketch5.addConstraint(Sketcher.Constraint("Equal", 14, 16))
sketch5.addConstraint(Sketcher.Constraint("Equal", 15, 17))
sketch5.addConstraint(Sketcher.Constraint("Equal", 16, 18))
sketch5.addConstraint(Sketcher.Constraint("Equal", 17, 19))
sketch5.addConstraint(Sketcher.Constraint("Equal", 18, 20))
sketch5.addConstraint(Sketcher.Constraint("Equal", 20, 21))
sketch5.addConstraint(Sketcher.Constraint("Equal", 19, 22))
sketch5.addConstraint(Sketcher.Constraint("Equal", 21, 23))
sketch5.addConstraint(Sketcher.Constraint("Equal", 22, 24))
sketch5.addConstraint(Sketcher.Constraint("Equal", 23, 25))
sketch5.addConstraint(Sketcher.Constraint("Equal", 24, 26))
sketch5.addConstraint(Sketcher.Constraint("Equal", 25, 27))
sketch5.addConstraint(Sketcher.Constraint("Equal", 26, 28))
sketch5.addConstraint(Sketcher.Constraint("Equal", 27, 29))
sketch5.addConstraint(Sketcher.Constraint("Equal", 29, 30))
sketch5.addConstraint(Sketcher.Constraint("Equal", 28, 31))
sketch5.addConstraint(Sketcher.Constraint("Equal", 30, 32))
sketch5.addConstraint(Sketcher.Constraint("Equal", 31, 33))
sketch5.addConstraint(Sketcher.Constraint("Equal", 33, 34))
sketch5.addConstraint(Sketcher.Constraint("Equal", 35, 36))
sketch5.addConstraint(Sketcher.Constraint("Equal", 34, 38))
sketch5.addConstraint(Sketcher.Constraint("Equal", 38, 39))
sketch5.addConstraint(Sketcher.Constraint("Equal", 39, 40))
sketch5.addConstraint(Sketcher.Constraint("Equal", 40, 41))
sketch5.addConstraint(Sketcher.Constraint("Equal", 41, 42))
sketch5.addConstraint(Sketcher.Constraint("Equal", 42, 43))
sketch5.addConstraint(Sketcher.Constraint("Equal", 43, 44))
sketch5.addConstraint(Sketcher.Constraint("Equal", 44, 45))
sketch5.addConstraint(Sketcher.Constraint("Equal", 45, 46))
sketch5.addConstraint(Sketcher.Constraint("Equal", 46, 47))
sketch5.addConstraint(Sketcher.Constraint("Equal", 47, 48))
sketch5.addConstraint(Sketcher.Constraint("Equal", 48, 49))
sketch5.addConstraint(Sketcher.Constraint("Equal", 49, 50))
sketch5.addConstraint(Sketcher.Constraint("Equal", 50, 51))
sketch5.addConstraint(Sketcher.Constraint("Equal", 51, 52))
sketch5.addConstraint(Sketcher.Constraint("Equal", 32, 53))
sketch5.addConstraint(Sketcher.Constraint("Equal", 53, 54))
sketch5.addConstraint(Sketcher.Constraint("Equal", 54, 55))
sketch5.addConstraint(Sketcher.Constraint("Equal", 55, 56))
sketch5.addConstraint(Sketcher.Constraint("Equal", 56, 57))
sketch5.addConstraint(Sketcher.Constraint("Equal", 57, 58))
sketch5.addConstraint(Sketcher.Constraint("Equal", 58, 59))
sketch5.addConstraint(Sketcher.Constraint("Equal", 59, 60))
sketch5.addConstraint(Sketcher.Constraint("Equal", 60, 61))
sketch5.addConstraint(Sketcher.Constraint("Equal", 61, 62))
sketch5.addConstraint(Sketcher.Constraint("Equal", 62, 63))
sketch5.addConstraint(Sketcher.Constraint("Equal", 63, 64))
sketch5.addConstraint(Sketcher.Constraint("Equal", 64, 65))
sketch5.addConstraint(Sketcher.Constraint("Equal", 37, 66))
sketch5.addConstraint(Sketcher.Constraint("Equal", 65, 67))
sketch5.addConstraint(Sketcher.Constraint("Equal", 67, 68))
sketch5.addConstraint(Sketcher.Constraint("Equal", 36, 69))
sketch5.addConstraint(Sketcher.Constraint("Equal", 69, 70))
sketch5.addConstraint(Sketcher.Constraint("Equal", 68, 71))
sketch5.addConstraint(Sketcher.Constraint("Equal", 71, 72))
sketch5.addConstraint(Sketcher.Constraint("Equal", 66, 73))
sketch5.addConstraint(Sketcher.Constraint("Equal", 73, 74))
sketch5.addConstraint(Sketcher.Constraint("Equal", 72, 75))
sketch5.addConstraint(Sketcher.Constraint("Horizontal", 1, 3, 38, 3))
sketch5.addConstraint(Sketcher.Constraint("Horizontal", 10, 3, 39, 3))
sketch5.addConstraint(Sketcher.Constraint("Horizontal", 8, 3, 40, 3))
sketch5.addConstraint(Sketcher.Constraint("Horizontal", 5, 3, 41, 3))
sketch5.addConstraint(Sketcher.Constraint("Horizontal", 3, 3, 42, 3))
sketch5.addConstraint(Sketcher.Constraint("Horizontal", 13, 3, 43, 3))
sketch5.addConstraint(Sketcher.Constraint("Horizontal", 15, 3, 44, 3))
sketch5.addConstraint(Sketcher.Constraint("Horizontal", 17, 3, 45, 3))
sketch5.addConstraint(Sketcher.Constraint("Horizontal", 19, 3, 46, 3))
sketch5.addConstraint(Sketcher.Constraint("Horizontal", 22, 3, 47, 3))
sketch5.addConstraint(Sketcher.Constraint("Horizontal", 24, 3, 48, 3))
sketch5.addConstraint(Sketcher.Constraint("Horizontal", 26, 3, 49, 3))
sketch5.addConstraint(Sketcher.Constraint("Horizontal", 28, 3, 50, 3))
sketch5.addConstraint(Sketcher.Constraint("Horizontal", 31, 3, 51, 3))
sketch5.addConstraint(Sketcher.Constraint("Horizontal", 35, 3, 69, 3))
sketch5.addConstraint(Sketcher.Constraint("Horizontal", 36, 3, 70, 3))
sketch5.addConstraint(Sketcher.Constraint("Vertical", 15, 3, 17, 3))
sketch5.addConstraint(Sketcher.Constraint("Vertical", 14, 3, 18, 3))
sketch5.addConstraint(Sketcher.Constraint("Vertical", 13, 3, 19, 3))
sketch5.addConstraint(Sketcher.Constraint("Vertical", 10, 3, 22, 3))
sketch5.addConstraint(Sketcher.Constraint("Vertical", 9, 3, 23, 3))
sketch5.addConstraint(Sketcher.Constraint("Vertical", 8, 3, 24, 3))
sketch5.addConstraint(Sketcher.Constraint("Vertical", 5, 3, 26, 3))
sketch5.addConstraint(Sketcher.Constraint("Vertical", 4, 3, 27, 3))
sketch5.addConstraint(Sketcher.Constraint("Vertical", 3, 3, 28, 3))
sketch5.addConstraint(Sketcher.Constraint("Vertical", 0, 3, 32, 3))
sketch5.addConstraint(Sketcher.Constraint("Vertical", 35, 3, 36, 3))
sketch5.addConstraint(Sketcher.Constraint("Vertical", 44, 3, 45, 3))
sketch5.addConstraint(Sketcher.Constraint("Vertical", 43, 3, 46, 3))
sketch5.addConstraint(Sketcher.Constraint("Vertical", 39, 3, 47, 3))
sketch5.addConstraint(Sketcher.Constraint("Vertical", 40, 3, 48, 3))
sketch5.addConstraint(Sketcher.Constraint("Vertical", 41, 3, 49, 3))
sketch5.addConstraint(Sketcher.Constraint("Vertical", 42, 3, 50, 3))
sketch5.addConstraint(Sketcher.Constraint("Vertical", 54, 3, 55, 3))
sketch5.addConstraint(Sketcher.Constraint("Vertical", 53, 3, 56, 3))
sketch5.addConstraint(Sketcher.Constraint("Vertical", 52, 3, 57, 3))
sketch5.addConstraint(Sketcher.Constraint("Vertical", 69, 3, 70, 3))
sketch5.addConstraint(Sketcher.Constraint("Diameter", 0, 3.6))
sketch5.addConstraint(Sketcher.Constraint("Diameter", 1, 3.4))
sketch5.addConstraint(Sketcher.Constraint("Diameter", 35, 3.5))
sketch5.addConstraint(Sketcher.Constraint("Diameter", 37, 3.2))
sketch5.addConstraint(Sketcher.Constraint("DistanceY", -1, 1, 19, 3, 44.112799))
sketch5.addConstraint(Sketcher.Constraint("DistanceY", -1, 1, 26, 3, 34.112799))
sketch5.addConstraint(Sketcher.Constraint("DistanceX", -1, 1, 39, 3, 45.216099))
sketch5.addConstraint(Sketcher.Constraint("DistanceY", -1, 1, 66, 3, 47.219101))
sketch5.addConstraint(Sketcher.Constraint("DistanceY", -1, 1, 67, 3, 47.564499))
sketch5.addConstraint(Sketcher.Constraint("DistanceX", -1, 1, 1, 3, 23.735971))
sketch5.addConstraint(Sketcher.Constraint("DistanceY", -1, 1, 1, 3, 69.856091))
sketch5.addConstraint(Sketcher.Constraint("DistanceY", -1, 1, 3, 3, 68.564048))
sketch5.addConstraint(Sketcher.Constraint("DistanceY", -1, 1, 5, 3, 66.473479))
sketch5.addConstraint(Sketcher.Constraint("DistanceX", -1, 1, 6, 3, 25.150959))
sketch5.addConstraint(Sketcher.Constraint("DistanceY", -1, 1, 6, 3, 56.896651))
sketch5.addConstraint(Sketcher.Constraint("DistanceX", -1, 1, 7, 3, 20.050012))
sketch5.addConstraint(Sketcher.Constraint("DistanceY", -1, 1, 8, 3, 63.675751))
sketch5.addConstraint(Sketcher.Constraint("DistanceY", -1, 1, 9, 3, 59.38381))
sketch5.addConstraint(Sketcher.Constraint("DistanceY", -1, 1, 10, 3, 60.293139))
sketch5.addConstraint(Sketcher.Constraint("DistanceY", -1, 1, 11, 3, 53.021779))
sketch5.addConstraint(Sketcher.Constraint("DistanceX", -1, 1, 13, 3, 8.874461))
sketch5.addConstraint(Sketcher.Constraint("DistanceY", -1, 1, 13, 3, 56.473479))
sketch5.addConstraint(Sketcher.Constraint("DistanceX", -1, 1, 16, 3, 16.22956))
sketch5.addConstraint(Sketcher.Constraint("DistanceY", -1, 1, 17, 3, 48.20257))
sketch5.addConstraint(Sketcher.Constraint("DistanceX", -1, 1, 20, 3, 21.292079))
sketch5.addConstraint(Sketcher.Constraint("DistanceX", -1, 1, 21, 3, 17.24291))
sketch5.addConstraint(Sketcher.Constraint("DistanceY", -1, 1, 22, 3, 40.293139))
sketch5.addConstraint(Sketcher.Constraint("DistanceY", -1, 1, 23, 3, 41.202468))
sketch5.addConstraint(Sketcher.Constraint("DistanceX", -1, 1, 25, 3, 20.087958))
sketch5.addConstraint(Sketcher.Constraint("DistanceY", -1, 1, 28, 3, 32.02223))
sketch5.addConstraint(Sketcher.Constraint("DistanceY", -1, 1, 32, 3, 34.91189))
sketch5.addConstraint(Sketcher.Constraint("DistanceX", -1, 1, 33, 3, 27.895591))
sketch5.addConstraint(Sketcher.Constraint("DistanceY", -1, 1, 33, 3, 30.293139))
sketch5.addConstraint(Sketcher.Constraint("DistanceY", -1, 1, 34, 3, 70.293139))
sketch5.addConstraint(Sketcher.Constraint("DistanceX", -1, 1, 35, 3, 6.895591))
sketch5.addConstraint(Sketcher.Constraint("DistanceY", -1, 1, 35, 3, 71.293139))
sketch5.addConstraint(Sketcher.Constraint("DistanceY", -1, 1, 36, 3, 29.293139))
sketch5.addConstraint(Sketcher.Constraint("DistanceY", -1, 1, 37, 3, 50.293139))
sketch5.addConstraint(Sketcher.Constraint("DistanceX", -1, 1, 38, 3, 32.055211))
sketch5.addConstraint(Sketcher.Constraint("DistanceX", -1, 1, 43, 3, 46.916721))
sketch5.addConstraint(Sketcher.Constraint("DistanceX", -1, 1, 44, 3, 47.786029))
sketch5.addConstraint(Sketcher.Constraint("DistanceX", -1, 1, 52, 3, 32.67484))
sketch5.addConstraint(Sketcher.Constraint("DistanceX", -1, 1, 54, 3, 42.02446))
sketch5.addConstraint(Sketcher.Constraint("DistanceY", -1, 1, 55, 3, 44.002561))
sketch5.addConstraint(Sketcher.Constraint("DistanceY", -1, 1, 56, 3, 38.799681))
sketch5.addConstraint(Sketcher.Constraint("DistanceX", -1, 1, 58, 3, 33.825809))
sketch5.addConstraint(Sketcher.Constraint("DistanceY", -1, 1, 59, 3, 57.07016))
sketch5.addConstraint(Sketcher.Constraint("DistanceX", -1, 1, 60, 3, 39.324071))
sketch5.addConstraint(Sketcher.Constraint("DistanceX", -1, 1, 64, 3, 30.624231))
sketch5.addConstraint(Sketcher.Constraint("DistanceY", -1, 1, 65, 3, 53.037771))
sketch5.addConstraint(Sketcher.Constraint("DistanceX", -1, 1, 66, 3, 27.89493))
sketch5.addConstraint(Sketcher.Constraint("DistanceX", -1, 1, 68, 3, 29.08552))
sketch5.addConstraint(Sketcher.Constraint("DistanceX", -1, 1, 69, 3, 48.895591))
sketch5.addConstraint(Sketcher.Constraint("DistanceX", -1, 1, 71, 3, 25.166951))
sketch5.addConstraint(Sketcher.Constraint("DistanceY", -1, 1, 72, 3, 61.903461))
sketch5.addConstraint(Sketcher.Constraint("DistanceX", -1, 1, 75, 3, 43.560039))
sketch5.addConstraint(Sketcher.Constraint("DistanceX", -1, 1, 0, 3, 26.278957))
sketch5.addConstraint(Sketcher.Constraint("DistanceY", -1, 1, 0, 3, 65.674388))
sketch5.addConstraint(Sketcher.Constraint("DistanceX", -1, 1, 2, 3, 24.226898))
sketch5.addConstraint(Sketcher.Constraint("DistanceY", -1, 1, 2, 3, 61.367326))
sketch5.addConstraint(Sketcher.Constraint("DistanceX", -1, 1, 3, 3, 19.760858))
sketch5.addConstraint(Sketcher.Constraint("DistanceX", -1, 1, 4, 3, 20.162604))
sketch5.addConstraint(Sketcher.Constraint("DistanceY", -1, 1, 4, 3, 63.687065))
sketch5.addConstraint(Sketcher.Constraint("DistanceX", -1, 1, 5, 3, 16.139886))
sketch5.addConstraint(Sketcher.Constraint("DistanceY", -1, 1, 7, 3, 58.927016))
sketch5.addConstraint(Sketcher.Constraint("DistanceX", -1, 1, 8, 3, 13.032694))
sketch5.addConstraint(Sketcher.Constraint("DistanceX", -1, 1, 9, 3, 15.383356))
sketch5.addConstraint(Sketcher.Constraint("DistanceX", -1, 1, 10, 3, 10.575083))
sketch5.addConstraint(Sketcher.Constraint("DistanceX", -1, 1, 11, 3, 21.285455))
sketch5.addConstraint(Sketcher.Constraint("DistanceX", -1, 1, 12, 3, 17.222152))
sketch5.addConstraint(Sketcher.Constraint("DistanceY", -1, 1, 12, 3, 55.002134))
sketch5.addConstraint(Sketcher.Constraint("DistanceX", -1, 1, 14, 3, 12.767587))
sketch5.addConstraint(Sketcher.Constraint("DistanceY", -1, 1, 14, 3, 53.508696))
sketch5.addConstraint(Sketcher.Constraint("DistanceX", -1, 1, 15, 3, 8.005153))
sketch5.addConstraint(Sketcher.Constraint("DistanceY", -1, 1, 15, 3, 52.383708))
sketch5.addConstraint(Sketcher.Constraint("DistanceY", -1, 1, 16, 3, 50.267554))
sketch5.addConstraint(Sketcher.Constraint("DistanceY", -1, 1, 18, 3, 47.077582))
sketch5.addConstraint(Sketcher.Constraint("DistanceY", -1, 1, 20, 3, 47.548507))
sketch5.addConstraint(Sketcher.Constraint("DistanceY", -1, 1, 21, 3, 45.537373))
sketch5.addConstraint(Sketcher.Constraint("DistanceY", -1, 1, 24, 3, 36.910527))
sketch5.addConstraint(Sketcher.Constraint("DistanceY", -1, 1, 25, 3, 41.624933))
sketch5.addConstraint(Sketcher.Constraint("DistanceY", -1, 1, 27, 3, 36.899213))
sketch5.addConstraint(Sketcher.Constraint("DistanceX", -1, 1, 29, 3, 30.640223))
sketch5.addConstraint(Sketcher.Constraint("DistanceY", -1, 1, 29, 3, 43.689627))
sketch5.addConstraint(Sketcher.Constraint("DistanceX", -1, 1, 30, 3, 24.275508))
sketch5.addConstraint(Sketcher.Constraint("DistanceY", -1, 1, 30, 3, 39.202966))
sketch5.addConstraint(Sketcher.Constraint("DistanceX", -1, 1, 31, 3, 23.737357))
sketch5.addConstraint(Sketcher.Constraint("DistanceY", -1, 1, 31, 3, 30.730187))
sketch5.addConstraint(Sketcher.Constraint("DistanceX", -1, 1, 34, 3, 27.894235))
sketch5.addConstraint(Sketcher.Constraint("DistanceX", -1, 1, 37, 3, 24.821553))
sketch5.addConstraint(Sketcher.Constraint("DistanceX", -1, 1, 40, 3, 42.758488))
sketch5.addConstraint(Sketcher.Constraint("DistanceX", -1, 1, 41, 3, 39.651296))
sketch5.addConstraint(Sketcher.Constraint("DistanceX", -1, 1, 42, 3, 36.030324))
sketch5.addConstraint(Sketcher.Constraint("DistanceX", -1, 1, 51, 3, 32.053825))
sketch5.addConstraint(Sketcher.Constraint("DistanceY", -1, 1, 52, 3, 65.002154))
sketch5.addConstraint(Sketcher.Constraint("DistanceX", -1, 1, 53, 3, 38.244347))
sketch5.addConstraint(Sketcher.Constraint("DistanceY", -1, 1, 53, 3, 61.786597))
sketch5.addConstraint(Sketcher.Constraint("DistanceY", -1, 1, 54, 3, 56.583717))
sketch5.addConstraint(Sketcher.Constraint("DistanceY", -1, 1, 57, 3, 35.584124))
sketch5.addConstraint(Sketcher.Constraint("DistanceY", -1, 1, 58, 3, 60.339504))
sketch5.addConstraint(Sketcher.Constraint("DistanceX", -1, 1, 59, 3, 37.391323))
sketch5.addConstraint(Sketcher.Constraint("DistanceY", -1, 1, 60, 3, 52.635527))
sketch5.addConstraint(Sketcher.Constraint("DistanceX", -1, 1, 61, 3, 39.291724))
sketch5.addConstraint(Sketcher.Constraint("DistanceY", -1, 1, 61, 3, 47.798126))
sketch5.addConstraint(Sketcher.Constraint("DistanceX", -1, 1, 62, 3, 37.299843))
sketch5.addConstraint(Sketcher.Constraint("DistanceY", -1, 1, 62, 3, 43.389736))
sketch5.addConstraint(Sketcher.Constraint("DistanceX", -1, 1, 63, 3, 33.690928))
sketch5.addConstraint(Sketcher.Constraint("DistanceY", -1, 1, 63, 3, 40.168367))
sketch5.addConstraint(Sketcher.Constraint("DistanceY", -1, 1, 64, 3, 56.903275))
sketch5.addConstraint(Sketcher.Constraint("DistanceX", -1, 1, 65, 3, 34.499103))
sketch5.addConstraint(Sketcher.Constraint("DistanceX", -1, 1, 67, 3, 34.505727))
sketch5.addConstraint(Sketcher.Constraint("DistanceY", -1, 1, 68, 3, 38.687925))
sketch5.addConstraint(Sketcher.Constraint("DistanceY", -1, 1, 71, 3, 43.683003))
sketch5.addConstraint(Sketcher.Constraint("DistanceX", -1, 1, 72, 3, 29.034605))
sketch5.addConstraint(Sketcher.Constraint("DistanceX", -1, 1, 73, 3, 28.068774))
sketch5.addConstraint(Sketcher.Constraint("DistanceY", -1, 1, 73, 3, 53.405946))
sketch5.addConstraint(Sketcher.Constraint("DistanceX", -1, 1, 74, 3, 30.911116))
sketch5.addConstraint(Sketcher.Constraint("DistanceY", -1, 1, 74, 3, 50.323947))
sketch5.addConstraint(Sketcher.Constraint("DistanceY", -1, 1, 75, 3, 50.235976))
pocket3 = doc.addObject("PartDesign::Pocket", "Pocket002")
body.addObject(pocket3)
pocket3.Profile = sketch5
pocket3.Length = 5
pocket3.Reversed = True

doc.recompute()
